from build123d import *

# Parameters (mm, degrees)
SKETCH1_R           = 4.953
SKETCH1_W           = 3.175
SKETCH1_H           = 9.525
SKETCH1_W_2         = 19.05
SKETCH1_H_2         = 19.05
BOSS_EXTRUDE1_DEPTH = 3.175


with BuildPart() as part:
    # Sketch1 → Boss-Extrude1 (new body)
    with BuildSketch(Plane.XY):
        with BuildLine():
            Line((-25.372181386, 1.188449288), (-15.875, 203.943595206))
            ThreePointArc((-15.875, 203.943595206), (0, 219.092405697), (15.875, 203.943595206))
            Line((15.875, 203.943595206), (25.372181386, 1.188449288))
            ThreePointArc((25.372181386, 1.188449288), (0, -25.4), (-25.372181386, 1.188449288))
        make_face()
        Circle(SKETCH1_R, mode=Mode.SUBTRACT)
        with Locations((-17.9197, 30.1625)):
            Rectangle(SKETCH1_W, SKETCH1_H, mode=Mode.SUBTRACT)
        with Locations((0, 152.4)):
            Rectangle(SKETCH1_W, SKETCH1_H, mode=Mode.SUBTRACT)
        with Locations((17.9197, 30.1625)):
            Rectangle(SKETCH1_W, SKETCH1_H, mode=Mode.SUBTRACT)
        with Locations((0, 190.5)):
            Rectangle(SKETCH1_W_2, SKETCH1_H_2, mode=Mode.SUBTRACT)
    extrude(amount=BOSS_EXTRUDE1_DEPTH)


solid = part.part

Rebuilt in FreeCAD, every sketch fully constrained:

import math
import FreeCAD as App
import Part
import Sketcher
from FreeCAD import Vector
Q = App.Units.Quantity


def add_polygon(sketch, points):
    """Adds a closed chain of lines whose ends are joined by coincident constraints."""
    first, n = sketch.GeometryCount, len(points)
    for a, b in zip(points, points[1:] + points[:1]):
        sketch.addGeometry(Part.LineSegment(App.Vector(*a, 0), App.Vector(*b, 0)), False)
    for i in range(n):
        sketch.addConstraint(Sketcher.Constraint("Coincident", first + i, 2, first + (i + 1) % n, 1))

doc = App.newDocument("Part")
body = doc.addObject("PartDesign::Body", "Body")

# Sketch on XY plane
sketch1 = body.newObject("Sketcher::SketchObject", "Sketch")
sketch1.AttachmentSupport = (doc.getObject("XY_Plane"), [""])
sketch1.MapMode = "FlatFace"
sketch1.addGeometry(Part.LineSegment(Vector(-15.9, 203.9, 0), Vector(-25.4, 1.2, 0)), False)  # 0
sketch1.addGeometry(Part.ArcOfCircle(Part.Circle(Vector(0, 0, 0), Vector(0, 0, 1), 25.4), math.radians(177), math.radians(363)), False)  # 1
sketch1.addGeometry(Part.LineSegment(Vector(25.4, 1.2, 0), Vector(15.9, 203.9, 0)), False)  # 2
sketch1.addGeometry(Part.ArcOfCircle(Part.Circle(Vector(0, 203.2, 0), Vector(0, 0, 1), 15.9), math.radians(3), math.radians(177)), False)  # 3
add_polygon(sketch1, [(16.3, 25.4), (16.3, 34.9), (19.5, 34.9), (19.5, 25.4)])  # lines 4-7
sketch1.addGeometry(Part.Circle(Vector(0, 0, 0), Vector(0, 0, 1), 5), False)  # 8
add_polygon(sketch1, [(-19.5, 25.4), (-19.5, 34.9), (-16.3, 34.9), (-16.3, 25.4)])  # lines 9-12
add_polygon(sketch1, [(-1.6, 147.6), (-1.6, 157.2), (1.6, 157.2), (1.6, 147.6)])  # lines 13-16
add_polygon(sketch1, [(-9.5, 181), (-9.5, 200), (9.5, 200), (9.5, 181)])  # lines 17-20
sketch1.addConstraint([
    Sketcher.Constraint("Tangent", 0, 2, 1, 1),
    Sketcher.Constraint("Tangent", 1, 2, 2, 1),
    Sketcher.Constraint("Tangent", 2, 2, 3, 1),
    Sketcher.Constraint("Tangent", 3, 2, 0, 1),
    Sketcher.Constraint("Vertical", 4),
    Sketcher.Constraint("Horizontal", 5),
    Sketcher.Constraint("Vertical", 6),
    Sketcher.Constraint("Horizontal", 7),
    Sketcher.Constraint("Vertical", 9),
    Sketcher.Constraint("Horizontal", 10),
    Sketcher.Constraint("Vertical", 11),
    Sketcher.Constraint("Horizontal", 12),
    Sketcher.Constraint("Vertical", 13),
    Sketcher.Constraint("Horizontal", 14),
    Sketcher.Constraint("Vertical", 15),
    Sketcher.Constraint("Horizontal", 16),
    Sketcher.Constraint("Vertical", 17),
    Sketcher.Constraint("Horizontal", 18),
    Sketcher.Constraint("Vertical", 19),
    Sketcher.Constraint("Horizontal", 20),
    Sketcher.Constraint("Coincident", 1, 3, -1, 1),
    Sketcher.Constraint("Coincident", 8, 3, -1, 1),
    Sketcher.Constraint("Symmetric", 5, 2, 9, 2, -2),
    Sketcher.Constraint("Symmetric", 7, 2, 11, 2, -2),
    Sketcher.Constraint("PointOnObject", 3, 3, -2),
    Sketcher.Constraint("Equal", 12, 14),
    Sketcher.Constraint("Equal", 11, 13),
    Sketcher.Constraint("Equal", 20, 17),
    Sketcher.Constraint("Radius", 1, Q("1 in")),
    Sketcher.Constraint("Diameter", 8, Q("0.39 in")),
    Sketcher.Constraint("DistanceY", -1, 1, 3, 3, Q("8 in")),
    Sketcher.Constraint("DistanceY", -1, 1, 6, 2, Q("1 in")),
    Sketcher.Constraint("DistanceX", 17, 2, 2, 2, Q("1 in")),
    Sketcher.Constraint("DistanceX", 3, 2, 18, 2, Q("1 in")),
    Sketcher.Constraint("DistanceX", 18, 1, 18, 2, Q("0.75 in")),
    Sketcher.Constraint("DistanceX", 5, 1, 5, 2, Q("0.125 in")),
    Sketcher.Constraint("DistanceY", 4, 1, 4, 2, Q("0.375 in")),
    Sketcher.Constraint("DistanceX", -1, 1, 4, 2, Q("0.643 in")),
    Sketcher.Constraint("DistanceX", 13, 2, -1, 1, Q("0.0625 in")),
    Sketcher.Constraint("DistanceY", -1, 1, 13, 2, Q("6.1875 in")),
    Sketcher.Constraint("DistanceY", -1, 1, 17, 2, Q("7.875 in")),
])
pad1 = body.newObject("PartDesign::Pad", "Pad")
pad1.Profile = sketch1
pad1.Length = Q("0.125 in")

doc.recompute()
